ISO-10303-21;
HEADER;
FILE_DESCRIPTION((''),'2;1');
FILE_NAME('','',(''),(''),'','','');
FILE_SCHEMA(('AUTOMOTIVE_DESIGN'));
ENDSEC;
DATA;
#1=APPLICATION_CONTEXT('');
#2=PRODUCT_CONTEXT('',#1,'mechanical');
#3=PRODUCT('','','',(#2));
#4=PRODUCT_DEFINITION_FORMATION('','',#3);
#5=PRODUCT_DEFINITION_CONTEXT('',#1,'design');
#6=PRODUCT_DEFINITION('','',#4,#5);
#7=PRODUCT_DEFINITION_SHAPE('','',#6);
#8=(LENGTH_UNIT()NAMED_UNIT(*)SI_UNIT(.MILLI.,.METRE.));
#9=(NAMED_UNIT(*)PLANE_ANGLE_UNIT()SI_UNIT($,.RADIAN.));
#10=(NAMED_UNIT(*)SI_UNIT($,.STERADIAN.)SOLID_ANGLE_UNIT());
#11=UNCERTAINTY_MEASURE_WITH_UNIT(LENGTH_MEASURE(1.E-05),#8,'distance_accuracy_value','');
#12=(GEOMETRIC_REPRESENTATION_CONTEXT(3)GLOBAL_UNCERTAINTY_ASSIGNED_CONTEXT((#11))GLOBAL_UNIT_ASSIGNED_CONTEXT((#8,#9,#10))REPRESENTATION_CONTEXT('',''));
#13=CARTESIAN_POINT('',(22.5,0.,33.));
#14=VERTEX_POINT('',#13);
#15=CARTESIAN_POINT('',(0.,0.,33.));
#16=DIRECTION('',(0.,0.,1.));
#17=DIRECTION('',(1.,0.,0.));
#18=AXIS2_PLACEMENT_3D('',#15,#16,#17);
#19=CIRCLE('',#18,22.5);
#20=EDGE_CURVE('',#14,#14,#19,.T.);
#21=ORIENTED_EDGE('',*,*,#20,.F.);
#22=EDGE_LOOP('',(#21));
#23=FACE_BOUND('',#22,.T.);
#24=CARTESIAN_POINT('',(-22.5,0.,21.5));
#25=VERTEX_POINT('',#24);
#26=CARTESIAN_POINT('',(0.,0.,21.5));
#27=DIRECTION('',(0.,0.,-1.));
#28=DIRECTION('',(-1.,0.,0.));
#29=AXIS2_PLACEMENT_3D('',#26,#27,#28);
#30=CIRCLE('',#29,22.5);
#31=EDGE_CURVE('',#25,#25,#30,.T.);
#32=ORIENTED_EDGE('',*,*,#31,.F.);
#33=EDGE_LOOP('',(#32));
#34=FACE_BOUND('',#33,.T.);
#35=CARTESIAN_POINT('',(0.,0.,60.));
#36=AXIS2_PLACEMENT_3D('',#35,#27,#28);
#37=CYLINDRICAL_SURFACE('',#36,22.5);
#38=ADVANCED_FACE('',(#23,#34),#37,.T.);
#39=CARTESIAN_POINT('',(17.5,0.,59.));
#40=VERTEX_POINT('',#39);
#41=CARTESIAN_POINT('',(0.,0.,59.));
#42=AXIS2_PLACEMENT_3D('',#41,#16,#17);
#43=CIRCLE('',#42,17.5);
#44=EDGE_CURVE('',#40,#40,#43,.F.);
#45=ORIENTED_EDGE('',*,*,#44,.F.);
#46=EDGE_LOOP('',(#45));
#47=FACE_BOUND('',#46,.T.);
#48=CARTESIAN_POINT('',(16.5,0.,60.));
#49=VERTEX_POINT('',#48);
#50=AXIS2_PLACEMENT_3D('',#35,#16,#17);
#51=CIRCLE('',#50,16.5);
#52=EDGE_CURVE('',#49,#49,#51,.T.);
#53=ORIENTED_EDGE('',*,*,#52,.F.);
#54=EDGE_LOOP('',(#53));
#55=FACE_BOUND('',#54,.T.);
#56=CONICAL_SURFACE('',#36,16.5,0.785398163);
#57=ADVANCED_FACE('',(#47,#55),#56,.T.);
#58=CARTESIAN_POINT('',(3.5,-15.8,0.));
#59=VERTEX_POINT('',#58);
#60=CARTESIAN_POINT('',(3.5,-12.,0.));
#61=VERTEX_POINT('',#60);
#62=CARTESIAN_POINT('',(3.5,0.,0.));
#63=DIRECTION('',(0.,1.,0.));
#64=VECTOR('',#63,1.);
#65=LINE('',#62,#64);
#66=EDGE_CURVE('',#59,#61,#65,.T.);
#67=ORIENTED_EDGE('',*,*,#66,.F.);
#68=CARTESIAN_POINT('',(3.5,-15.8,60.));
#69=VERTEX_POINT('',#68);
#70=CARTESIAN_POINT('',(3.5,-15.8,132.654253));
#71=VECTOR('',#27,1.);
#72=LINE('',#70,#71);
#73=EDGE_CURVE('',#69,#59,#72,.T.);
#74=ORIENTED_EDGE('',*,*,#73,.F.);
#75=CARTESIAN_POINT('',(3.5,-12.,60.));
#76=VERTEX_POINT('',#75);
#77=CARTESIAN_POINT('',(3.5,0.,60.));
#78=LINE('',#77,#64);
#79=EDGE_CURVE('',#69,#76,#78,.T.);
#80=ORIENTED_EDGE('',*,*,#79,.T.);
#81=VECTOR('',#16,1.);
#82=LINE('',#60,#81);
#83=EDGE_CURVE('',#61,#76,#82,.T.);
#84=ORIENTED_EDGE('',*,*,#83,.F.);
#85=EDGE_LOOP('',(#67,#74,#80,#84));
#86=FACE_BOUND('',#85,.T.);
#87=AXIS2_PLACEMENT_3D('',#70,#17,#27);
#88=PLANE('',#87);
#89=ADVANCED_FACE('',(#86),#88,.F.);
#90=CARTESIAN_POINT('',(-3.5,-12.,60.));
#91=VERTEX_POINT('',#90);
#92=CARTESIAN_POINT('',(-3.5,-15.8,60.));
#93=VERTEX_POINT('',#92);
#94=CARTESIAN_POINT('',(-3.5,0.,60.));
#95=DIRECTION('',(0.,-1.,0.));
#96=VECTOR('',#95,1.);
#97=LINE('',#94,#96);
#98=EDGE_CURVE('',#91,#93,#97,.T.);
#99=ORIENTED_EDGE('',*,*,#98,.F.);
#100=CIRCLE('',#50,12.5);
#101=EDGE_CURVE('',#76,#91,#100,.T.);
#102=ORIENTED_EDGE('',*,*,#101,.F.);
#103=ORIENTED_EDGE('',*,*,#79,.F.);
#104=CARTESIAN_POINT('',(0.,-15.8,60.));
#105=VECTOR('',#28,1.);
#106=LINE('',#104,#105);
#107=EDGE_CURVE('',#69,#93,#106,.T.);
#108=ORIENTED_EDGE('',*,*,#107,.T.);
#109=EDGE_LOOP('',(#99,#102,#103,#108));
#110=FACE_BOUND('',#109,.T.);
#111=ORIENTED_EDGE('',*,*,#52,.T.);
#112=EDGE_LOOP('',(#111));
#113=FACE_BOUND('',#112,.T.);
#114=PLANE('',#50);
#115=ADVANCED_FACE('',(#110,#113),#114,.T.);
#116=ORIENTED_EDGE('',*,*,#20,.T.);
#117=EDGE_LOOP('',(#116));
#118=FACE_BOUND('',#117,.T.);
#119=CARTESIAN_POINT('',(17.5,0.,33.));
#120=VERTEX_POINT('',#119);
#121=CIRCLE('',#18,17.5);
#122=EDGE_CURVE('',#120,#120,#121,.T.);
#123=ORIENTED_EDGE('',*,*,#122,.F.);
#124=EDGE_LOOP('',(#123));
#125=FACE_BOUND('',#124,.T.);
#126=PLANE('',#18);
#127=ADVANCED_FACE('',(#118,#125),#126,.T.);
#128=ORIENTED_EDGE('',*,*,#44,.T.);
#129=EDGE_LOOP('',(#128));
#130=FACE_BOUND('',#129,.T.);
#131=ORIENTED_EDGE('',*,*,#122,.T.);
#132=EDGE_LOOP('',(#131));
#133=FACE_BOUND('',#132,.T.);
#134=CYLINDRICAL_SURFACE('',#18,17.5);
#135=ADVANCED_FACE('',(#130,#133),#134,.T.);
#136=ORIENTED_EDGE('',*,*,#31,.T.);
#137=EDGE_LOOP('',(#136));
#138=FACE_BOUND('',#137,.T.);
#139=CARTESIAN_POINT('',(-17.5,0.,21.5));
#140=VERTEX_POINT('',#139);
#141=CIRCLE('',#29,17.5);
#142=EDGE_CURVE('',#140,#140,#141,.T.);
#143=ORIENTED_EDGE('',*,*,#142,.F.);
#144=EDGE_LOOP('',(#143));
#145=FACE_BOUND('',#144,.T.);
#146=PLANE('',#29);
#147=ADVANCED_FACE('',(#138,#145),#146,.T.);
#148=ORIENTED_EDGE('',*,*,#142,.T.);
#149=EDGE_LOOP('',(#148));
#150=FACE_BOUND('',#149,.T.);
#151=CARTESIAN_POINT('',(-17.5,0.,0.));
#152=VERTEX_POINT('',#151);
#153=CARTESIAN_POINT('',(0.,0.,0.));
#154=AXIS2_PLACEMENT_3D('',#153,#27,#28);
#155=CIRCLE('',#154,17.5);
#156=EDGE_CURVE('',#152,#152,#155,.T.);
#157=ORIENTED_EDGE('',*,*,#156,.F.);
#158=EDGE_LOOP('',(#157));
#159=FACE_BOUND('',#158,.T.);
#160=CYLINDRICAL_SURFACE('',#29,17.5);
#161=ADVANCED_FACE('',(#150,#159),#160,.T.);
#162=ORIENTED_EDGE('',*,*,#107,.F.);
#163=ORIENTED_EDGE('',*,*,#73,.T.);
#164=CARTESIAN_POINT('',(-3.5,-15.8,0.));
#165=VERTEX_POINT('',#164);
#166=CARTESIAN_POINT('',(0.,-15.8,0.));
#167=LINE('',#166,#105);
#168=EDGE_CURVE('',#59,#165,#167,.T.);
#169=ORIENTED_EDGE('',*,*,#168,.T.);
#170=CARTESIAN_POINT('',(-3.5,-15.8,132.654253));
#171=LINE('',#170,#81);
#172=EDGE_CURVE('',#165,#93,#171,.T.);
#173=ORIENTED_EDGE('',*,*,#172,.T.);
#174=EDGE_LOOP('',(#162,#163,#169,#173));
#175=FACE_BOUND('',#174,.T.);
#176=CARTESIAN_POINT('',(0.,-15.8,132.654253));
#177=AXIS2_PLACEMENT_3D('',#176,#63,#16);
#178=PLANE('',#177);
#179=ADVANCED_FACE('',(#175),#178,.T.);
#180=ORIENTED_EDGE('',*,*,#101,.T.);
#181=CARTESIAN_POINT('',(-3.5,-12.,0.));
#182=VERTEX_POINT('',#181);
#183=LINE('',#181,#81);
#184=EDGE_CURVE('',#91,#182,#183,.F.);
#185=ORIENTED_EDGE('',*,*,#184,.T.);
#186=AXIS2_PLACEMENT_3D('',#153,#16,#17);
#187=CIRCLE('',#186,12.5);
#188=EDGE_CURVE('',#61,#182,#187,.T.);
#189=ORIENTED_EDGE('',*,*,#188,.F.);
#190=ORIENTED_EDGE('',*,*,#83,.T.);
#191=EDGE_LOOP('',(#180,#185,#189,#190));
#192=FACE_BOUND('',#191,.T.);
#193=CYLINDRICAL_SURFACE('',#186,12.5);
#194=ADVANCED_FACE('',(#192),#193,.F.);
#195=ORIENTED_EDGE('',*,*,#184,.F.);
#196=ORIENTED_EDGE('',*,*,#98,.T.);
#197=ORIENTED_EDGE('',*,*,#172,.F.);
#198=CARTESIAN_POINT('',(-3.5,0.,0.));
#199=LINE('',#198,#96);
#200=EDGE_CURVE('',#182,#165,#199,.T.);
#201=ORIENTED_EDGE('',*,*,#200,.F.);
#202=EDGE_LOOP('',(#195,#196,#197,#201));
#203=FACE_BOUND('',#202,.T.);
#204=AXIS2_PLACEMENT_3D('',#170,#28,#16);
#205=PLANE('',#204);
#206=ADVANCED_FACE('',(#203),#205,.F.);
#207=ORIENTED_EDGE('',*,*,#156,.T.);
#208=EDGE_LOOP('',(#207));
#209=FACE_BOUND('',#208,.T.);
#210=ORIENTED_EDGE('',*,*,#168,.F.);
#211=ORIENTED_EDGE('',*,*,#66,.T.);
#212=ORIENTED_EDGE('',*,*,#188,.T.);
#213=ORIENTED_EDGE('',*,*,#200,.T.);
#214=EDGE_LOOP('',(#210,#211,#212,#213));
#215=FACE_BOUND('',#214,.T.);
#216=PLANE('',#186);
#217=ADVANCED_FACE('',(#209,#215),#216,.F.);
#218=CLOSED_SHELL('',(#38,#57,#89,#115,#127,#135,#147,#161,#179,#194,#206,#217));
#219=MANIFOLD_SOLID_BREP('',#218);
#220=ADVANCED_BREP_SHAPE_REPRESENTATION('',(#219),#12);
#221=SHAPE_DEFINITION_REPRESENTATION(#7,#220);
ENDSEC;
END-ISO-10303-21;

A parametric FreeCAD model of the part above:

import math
import FreeCAD as App
import Part
import Sketcher


def edges_at(feature, points):
    """Names of the edges that pass closest to the given points."""
    edges = feature.Shape.Edges
    near = lambda p: min(range(len(edges)), key=lambda i: edges[i].distToShape(Part.Vertex(*p))[0])
    return sorted({f"Edge{near(p) + 1}" for p in points})

doc = App.newDocument("Part")
body = doc.addObject("PartDesign::Body", "Body")

sketch1 = body.newObject("Sketcher::SketchObject", "Sketch")
sketch1.AttachmentSupport = (doc.getObject("XY_Plane"), [""])
sketch1.MapMode = "FlatFace"
sketch1.addGeometry(Part.Circle(App.Vector(0, 0, 0), App.Vector(0, 0, 1), 22), False)
sketch1.addConstraint([
    Sketcher.Constraint("Coincident", 0, 3, -1, 1),
    Sketcher.Constraint("Diameter", 0, 45.0),
])
pad1 = body.newObject("PartDesign::Pad", "Pad")
pad1.Profile = sketch1
pad1.Length = 60

sketch2 = body.newObject("Sketcher::SketchObject", "Sketch001")
sketch2.AttachmentSupport = (doc.getObject("XY_Plane"), [""])
sketch2.MapMode = "FlatFace"
sketch2.AttachmentOffset = App.Placement(App.Vector(0, 0, 60), App.Rotation())
sketch2.addGeometry([
    Part.LineSegment(App.Vector(-32, 32, 0), App.Vector(-32, -32, 0)),
    Part.LineSegment(App.Vector(-32, -32, 0), App.Vector(32, -32, 0)),
    Part.LineSegment(App.Vector(32, -32, 0), App.Vector(32, 32, 0)),
    Part.LineSegment(App.Vector(32, 32, 0), App.Vector(-32, 32, 0)),
    Part.Circle(App.Vector(0, 0, 0), App.Vector(0, 0, 1), 18),
], False)
sketch2.addConstraint([
    Sketcher.Constraint("Coincident", 0, 2, 1, 1),
    Sketcher.Constraint("Coincident", 1, 2, 2, 1),
    Sketcher.Constraint("Coincident", 2, 2, 3, 1),
    Sketcher.Constraint("Coincident", 3, 2, 0, 1),
    Sketcher.Constraint("Vertical", 0),
    Sketcher.Constraint("Horizontal", 1),
    Sketcher.Constraint("Vertical", 2),
    Sketcher.Constraint("Horizontal", 3),
    Sketcher.Constraint("Coincident", 4, 3, -1, 1),
    Sketcher.Constraint("Symmetric", 0, 2, 2, 2, -1, 1),
    Sketcher.Constraint("Equal", 3, 0),
    Sketcher.Constraint("Diameter", 4, 35.0),
    Sketcher.Constraint("DistanceX", 1, 1, 1, 2, 64.492),
])
pocket1 = body.newObject("PartDesign::Pocket", "Pocket")
pocket1.Profile = sketch2
pocket1.Length = 27

sketch3 = body.newObject("Sketcher::SketchObject", "Sketch002")
sketch3.AttachmentSupport = (doc.getObject("XY_Plane"), [""])
sketch3.MapMode = "FlatFace"
sketch3.addGeometry([
    Part.LineSegment(App.Vector(32, 32, 0), App.Vector(32, -32, 0)),
    Part.LineSegment(App.Vector(32, -32, 0), App.Vector(-32, -32, 0)),
    Part.LineSegment(App.Vector(-32, -32, 0), App.Vector(-32, 32, 0)),
    Part.LineSegment(App.Vector(-32, 32, 0), App.Vector(32, 32, 0)),
    Part.Circle(App.Vector(0, 0, 0), App.Vector(0, 0, 1), 18),
], False)
sketch3.addConstraint([
    Sketcher.Constraint("Coincident", 0, 2, 1, 1),
    Sketcher.Constraint("Coincident", 1, 2, 2, 1),
    Sketcher.Constraint("Coincident", 2, 2, 3, 1),
    Sketcher.Constraint("Coincident", 3, 2, 0, 1),
    Sketcher.Constraint("Vertical", 0),
    Sketcher.Constraint("Horizontal", 1),
    Sketcher.Constraint("Vertical", 2),
    Sketcher.Constraint("Horizontal", 3),
    Sketcher.Constraint("Coincident", 4, 3, -1, 1),
    Sketcher.Constraint("Symmetric", 0, 2, 2, 2, -1, 1),
    Sketcher.Constraint("Equal", 3, 0),
    Sketcher.Constraint("Diameter", 4, 35.0),
    Sketcher.Constraint("DistanceX", 1, 2, 1, 1, 64.492),
])
pocket2 = body.newObject("PartDesign::Pocket", "Pocket001")
pocket2.Profile = sketch3
pocket2.Length = 21.5
pocket2.Reversed = True

sketch4 = body.newObject("Sketcher::SketchObject", "Sketch003")
sketch4.AttachmentSupport = (doc.getObject("XY_Plane"), [""])
sketch4.MapMode = "FlatFace"
sketch4.AttachmentOffset = App.Placement(App.Vector(0, 0, 60), App.Rotation())
sketch4.addGeometry(Part.Circle(App.Vector(0, 0, 0), App.Vector(0, 0, 1), 12), False)
sketch4.addConstraint([
    Sketcher.Constraint("Coincident", 0, 3, -1, 1),
    Sketcher.Constraint("Diameter", 0, 25.0),
])
pocket3 = body.newObject("PartDesign::Pocket", "Pocket002")
pocket3.Profile = sketch4
pocket3.Type = "ThroughAll"

sketch5 = body.newObject("Sketcher::SketchObject", "Sketch004")
sketch5.AttachmentSupport = (doc.getObject("XZ_Plane"), [""])
sketch5.MapMode = "FlatFace"
sketch5.addGeometry([
    Part.LineSegment(App.Vector(-3.5, -6.7, 0), App.Vector(-3.5, 132.7, 0)),
    Part.ArcOfCircle(Part.Circle(App.Vector(0, 132.7, 0), App.Vector(0, 0, 1), 3.5), math.radians(0), math.radians(180)),
    Part.LineSegment(App.Vector(3.5, 132.7, 0), App.Vector(3.5, -6.7, 0)),
    Part.ArcOfCircle(Part.Circle(App.Vector(0, -6.7, 0), App.Vector(0, 0, 1), 3.5), math.radians(180), math.radians(360)),
], False)
sketch5.addConstraint([
    Sketcher.Constraint("Tangent", 0, 2, 1, 2),
    Sketcher.Constraint("Tangent", 1, 1, 2, 1),
    Sketcher.Constraint("Tangent", 2, 2, 3, 2),
    Sketcher.Constraint("Tangent", 3, 1, 0, 1),
    Sketcher.Constraint("Vertical", 0),
    Sketcher.Constraint("Vertical", 2),
    Sketcher.Constraint("PointOnObject", 1, 3, -2),
    Sketcher.Constraint("Radius", 1, 3.5),
    Sketcher.Constraint("DistanceY", 0, 1, 0, 2, 139.393047),
    Sketcher.Constraint("DistanceY", -1, 1, 1, 3, 132.654253),
])
pocket4 = body.newObject("PartDesign::Pocket", "Pocket003")
pocket4.Profile = sketch5
pocket4.Length = 15.8
pocket4.Reversed = True
doc.recompute()

chamfer = body.newObject("PartDesign::Chamfer", "Chamfer")
chamfer.Base = (pocket4, edges_at(pocket4, [(-17.5, 0, 60)]))
chamfer.Size = 1

doc.recompute()
